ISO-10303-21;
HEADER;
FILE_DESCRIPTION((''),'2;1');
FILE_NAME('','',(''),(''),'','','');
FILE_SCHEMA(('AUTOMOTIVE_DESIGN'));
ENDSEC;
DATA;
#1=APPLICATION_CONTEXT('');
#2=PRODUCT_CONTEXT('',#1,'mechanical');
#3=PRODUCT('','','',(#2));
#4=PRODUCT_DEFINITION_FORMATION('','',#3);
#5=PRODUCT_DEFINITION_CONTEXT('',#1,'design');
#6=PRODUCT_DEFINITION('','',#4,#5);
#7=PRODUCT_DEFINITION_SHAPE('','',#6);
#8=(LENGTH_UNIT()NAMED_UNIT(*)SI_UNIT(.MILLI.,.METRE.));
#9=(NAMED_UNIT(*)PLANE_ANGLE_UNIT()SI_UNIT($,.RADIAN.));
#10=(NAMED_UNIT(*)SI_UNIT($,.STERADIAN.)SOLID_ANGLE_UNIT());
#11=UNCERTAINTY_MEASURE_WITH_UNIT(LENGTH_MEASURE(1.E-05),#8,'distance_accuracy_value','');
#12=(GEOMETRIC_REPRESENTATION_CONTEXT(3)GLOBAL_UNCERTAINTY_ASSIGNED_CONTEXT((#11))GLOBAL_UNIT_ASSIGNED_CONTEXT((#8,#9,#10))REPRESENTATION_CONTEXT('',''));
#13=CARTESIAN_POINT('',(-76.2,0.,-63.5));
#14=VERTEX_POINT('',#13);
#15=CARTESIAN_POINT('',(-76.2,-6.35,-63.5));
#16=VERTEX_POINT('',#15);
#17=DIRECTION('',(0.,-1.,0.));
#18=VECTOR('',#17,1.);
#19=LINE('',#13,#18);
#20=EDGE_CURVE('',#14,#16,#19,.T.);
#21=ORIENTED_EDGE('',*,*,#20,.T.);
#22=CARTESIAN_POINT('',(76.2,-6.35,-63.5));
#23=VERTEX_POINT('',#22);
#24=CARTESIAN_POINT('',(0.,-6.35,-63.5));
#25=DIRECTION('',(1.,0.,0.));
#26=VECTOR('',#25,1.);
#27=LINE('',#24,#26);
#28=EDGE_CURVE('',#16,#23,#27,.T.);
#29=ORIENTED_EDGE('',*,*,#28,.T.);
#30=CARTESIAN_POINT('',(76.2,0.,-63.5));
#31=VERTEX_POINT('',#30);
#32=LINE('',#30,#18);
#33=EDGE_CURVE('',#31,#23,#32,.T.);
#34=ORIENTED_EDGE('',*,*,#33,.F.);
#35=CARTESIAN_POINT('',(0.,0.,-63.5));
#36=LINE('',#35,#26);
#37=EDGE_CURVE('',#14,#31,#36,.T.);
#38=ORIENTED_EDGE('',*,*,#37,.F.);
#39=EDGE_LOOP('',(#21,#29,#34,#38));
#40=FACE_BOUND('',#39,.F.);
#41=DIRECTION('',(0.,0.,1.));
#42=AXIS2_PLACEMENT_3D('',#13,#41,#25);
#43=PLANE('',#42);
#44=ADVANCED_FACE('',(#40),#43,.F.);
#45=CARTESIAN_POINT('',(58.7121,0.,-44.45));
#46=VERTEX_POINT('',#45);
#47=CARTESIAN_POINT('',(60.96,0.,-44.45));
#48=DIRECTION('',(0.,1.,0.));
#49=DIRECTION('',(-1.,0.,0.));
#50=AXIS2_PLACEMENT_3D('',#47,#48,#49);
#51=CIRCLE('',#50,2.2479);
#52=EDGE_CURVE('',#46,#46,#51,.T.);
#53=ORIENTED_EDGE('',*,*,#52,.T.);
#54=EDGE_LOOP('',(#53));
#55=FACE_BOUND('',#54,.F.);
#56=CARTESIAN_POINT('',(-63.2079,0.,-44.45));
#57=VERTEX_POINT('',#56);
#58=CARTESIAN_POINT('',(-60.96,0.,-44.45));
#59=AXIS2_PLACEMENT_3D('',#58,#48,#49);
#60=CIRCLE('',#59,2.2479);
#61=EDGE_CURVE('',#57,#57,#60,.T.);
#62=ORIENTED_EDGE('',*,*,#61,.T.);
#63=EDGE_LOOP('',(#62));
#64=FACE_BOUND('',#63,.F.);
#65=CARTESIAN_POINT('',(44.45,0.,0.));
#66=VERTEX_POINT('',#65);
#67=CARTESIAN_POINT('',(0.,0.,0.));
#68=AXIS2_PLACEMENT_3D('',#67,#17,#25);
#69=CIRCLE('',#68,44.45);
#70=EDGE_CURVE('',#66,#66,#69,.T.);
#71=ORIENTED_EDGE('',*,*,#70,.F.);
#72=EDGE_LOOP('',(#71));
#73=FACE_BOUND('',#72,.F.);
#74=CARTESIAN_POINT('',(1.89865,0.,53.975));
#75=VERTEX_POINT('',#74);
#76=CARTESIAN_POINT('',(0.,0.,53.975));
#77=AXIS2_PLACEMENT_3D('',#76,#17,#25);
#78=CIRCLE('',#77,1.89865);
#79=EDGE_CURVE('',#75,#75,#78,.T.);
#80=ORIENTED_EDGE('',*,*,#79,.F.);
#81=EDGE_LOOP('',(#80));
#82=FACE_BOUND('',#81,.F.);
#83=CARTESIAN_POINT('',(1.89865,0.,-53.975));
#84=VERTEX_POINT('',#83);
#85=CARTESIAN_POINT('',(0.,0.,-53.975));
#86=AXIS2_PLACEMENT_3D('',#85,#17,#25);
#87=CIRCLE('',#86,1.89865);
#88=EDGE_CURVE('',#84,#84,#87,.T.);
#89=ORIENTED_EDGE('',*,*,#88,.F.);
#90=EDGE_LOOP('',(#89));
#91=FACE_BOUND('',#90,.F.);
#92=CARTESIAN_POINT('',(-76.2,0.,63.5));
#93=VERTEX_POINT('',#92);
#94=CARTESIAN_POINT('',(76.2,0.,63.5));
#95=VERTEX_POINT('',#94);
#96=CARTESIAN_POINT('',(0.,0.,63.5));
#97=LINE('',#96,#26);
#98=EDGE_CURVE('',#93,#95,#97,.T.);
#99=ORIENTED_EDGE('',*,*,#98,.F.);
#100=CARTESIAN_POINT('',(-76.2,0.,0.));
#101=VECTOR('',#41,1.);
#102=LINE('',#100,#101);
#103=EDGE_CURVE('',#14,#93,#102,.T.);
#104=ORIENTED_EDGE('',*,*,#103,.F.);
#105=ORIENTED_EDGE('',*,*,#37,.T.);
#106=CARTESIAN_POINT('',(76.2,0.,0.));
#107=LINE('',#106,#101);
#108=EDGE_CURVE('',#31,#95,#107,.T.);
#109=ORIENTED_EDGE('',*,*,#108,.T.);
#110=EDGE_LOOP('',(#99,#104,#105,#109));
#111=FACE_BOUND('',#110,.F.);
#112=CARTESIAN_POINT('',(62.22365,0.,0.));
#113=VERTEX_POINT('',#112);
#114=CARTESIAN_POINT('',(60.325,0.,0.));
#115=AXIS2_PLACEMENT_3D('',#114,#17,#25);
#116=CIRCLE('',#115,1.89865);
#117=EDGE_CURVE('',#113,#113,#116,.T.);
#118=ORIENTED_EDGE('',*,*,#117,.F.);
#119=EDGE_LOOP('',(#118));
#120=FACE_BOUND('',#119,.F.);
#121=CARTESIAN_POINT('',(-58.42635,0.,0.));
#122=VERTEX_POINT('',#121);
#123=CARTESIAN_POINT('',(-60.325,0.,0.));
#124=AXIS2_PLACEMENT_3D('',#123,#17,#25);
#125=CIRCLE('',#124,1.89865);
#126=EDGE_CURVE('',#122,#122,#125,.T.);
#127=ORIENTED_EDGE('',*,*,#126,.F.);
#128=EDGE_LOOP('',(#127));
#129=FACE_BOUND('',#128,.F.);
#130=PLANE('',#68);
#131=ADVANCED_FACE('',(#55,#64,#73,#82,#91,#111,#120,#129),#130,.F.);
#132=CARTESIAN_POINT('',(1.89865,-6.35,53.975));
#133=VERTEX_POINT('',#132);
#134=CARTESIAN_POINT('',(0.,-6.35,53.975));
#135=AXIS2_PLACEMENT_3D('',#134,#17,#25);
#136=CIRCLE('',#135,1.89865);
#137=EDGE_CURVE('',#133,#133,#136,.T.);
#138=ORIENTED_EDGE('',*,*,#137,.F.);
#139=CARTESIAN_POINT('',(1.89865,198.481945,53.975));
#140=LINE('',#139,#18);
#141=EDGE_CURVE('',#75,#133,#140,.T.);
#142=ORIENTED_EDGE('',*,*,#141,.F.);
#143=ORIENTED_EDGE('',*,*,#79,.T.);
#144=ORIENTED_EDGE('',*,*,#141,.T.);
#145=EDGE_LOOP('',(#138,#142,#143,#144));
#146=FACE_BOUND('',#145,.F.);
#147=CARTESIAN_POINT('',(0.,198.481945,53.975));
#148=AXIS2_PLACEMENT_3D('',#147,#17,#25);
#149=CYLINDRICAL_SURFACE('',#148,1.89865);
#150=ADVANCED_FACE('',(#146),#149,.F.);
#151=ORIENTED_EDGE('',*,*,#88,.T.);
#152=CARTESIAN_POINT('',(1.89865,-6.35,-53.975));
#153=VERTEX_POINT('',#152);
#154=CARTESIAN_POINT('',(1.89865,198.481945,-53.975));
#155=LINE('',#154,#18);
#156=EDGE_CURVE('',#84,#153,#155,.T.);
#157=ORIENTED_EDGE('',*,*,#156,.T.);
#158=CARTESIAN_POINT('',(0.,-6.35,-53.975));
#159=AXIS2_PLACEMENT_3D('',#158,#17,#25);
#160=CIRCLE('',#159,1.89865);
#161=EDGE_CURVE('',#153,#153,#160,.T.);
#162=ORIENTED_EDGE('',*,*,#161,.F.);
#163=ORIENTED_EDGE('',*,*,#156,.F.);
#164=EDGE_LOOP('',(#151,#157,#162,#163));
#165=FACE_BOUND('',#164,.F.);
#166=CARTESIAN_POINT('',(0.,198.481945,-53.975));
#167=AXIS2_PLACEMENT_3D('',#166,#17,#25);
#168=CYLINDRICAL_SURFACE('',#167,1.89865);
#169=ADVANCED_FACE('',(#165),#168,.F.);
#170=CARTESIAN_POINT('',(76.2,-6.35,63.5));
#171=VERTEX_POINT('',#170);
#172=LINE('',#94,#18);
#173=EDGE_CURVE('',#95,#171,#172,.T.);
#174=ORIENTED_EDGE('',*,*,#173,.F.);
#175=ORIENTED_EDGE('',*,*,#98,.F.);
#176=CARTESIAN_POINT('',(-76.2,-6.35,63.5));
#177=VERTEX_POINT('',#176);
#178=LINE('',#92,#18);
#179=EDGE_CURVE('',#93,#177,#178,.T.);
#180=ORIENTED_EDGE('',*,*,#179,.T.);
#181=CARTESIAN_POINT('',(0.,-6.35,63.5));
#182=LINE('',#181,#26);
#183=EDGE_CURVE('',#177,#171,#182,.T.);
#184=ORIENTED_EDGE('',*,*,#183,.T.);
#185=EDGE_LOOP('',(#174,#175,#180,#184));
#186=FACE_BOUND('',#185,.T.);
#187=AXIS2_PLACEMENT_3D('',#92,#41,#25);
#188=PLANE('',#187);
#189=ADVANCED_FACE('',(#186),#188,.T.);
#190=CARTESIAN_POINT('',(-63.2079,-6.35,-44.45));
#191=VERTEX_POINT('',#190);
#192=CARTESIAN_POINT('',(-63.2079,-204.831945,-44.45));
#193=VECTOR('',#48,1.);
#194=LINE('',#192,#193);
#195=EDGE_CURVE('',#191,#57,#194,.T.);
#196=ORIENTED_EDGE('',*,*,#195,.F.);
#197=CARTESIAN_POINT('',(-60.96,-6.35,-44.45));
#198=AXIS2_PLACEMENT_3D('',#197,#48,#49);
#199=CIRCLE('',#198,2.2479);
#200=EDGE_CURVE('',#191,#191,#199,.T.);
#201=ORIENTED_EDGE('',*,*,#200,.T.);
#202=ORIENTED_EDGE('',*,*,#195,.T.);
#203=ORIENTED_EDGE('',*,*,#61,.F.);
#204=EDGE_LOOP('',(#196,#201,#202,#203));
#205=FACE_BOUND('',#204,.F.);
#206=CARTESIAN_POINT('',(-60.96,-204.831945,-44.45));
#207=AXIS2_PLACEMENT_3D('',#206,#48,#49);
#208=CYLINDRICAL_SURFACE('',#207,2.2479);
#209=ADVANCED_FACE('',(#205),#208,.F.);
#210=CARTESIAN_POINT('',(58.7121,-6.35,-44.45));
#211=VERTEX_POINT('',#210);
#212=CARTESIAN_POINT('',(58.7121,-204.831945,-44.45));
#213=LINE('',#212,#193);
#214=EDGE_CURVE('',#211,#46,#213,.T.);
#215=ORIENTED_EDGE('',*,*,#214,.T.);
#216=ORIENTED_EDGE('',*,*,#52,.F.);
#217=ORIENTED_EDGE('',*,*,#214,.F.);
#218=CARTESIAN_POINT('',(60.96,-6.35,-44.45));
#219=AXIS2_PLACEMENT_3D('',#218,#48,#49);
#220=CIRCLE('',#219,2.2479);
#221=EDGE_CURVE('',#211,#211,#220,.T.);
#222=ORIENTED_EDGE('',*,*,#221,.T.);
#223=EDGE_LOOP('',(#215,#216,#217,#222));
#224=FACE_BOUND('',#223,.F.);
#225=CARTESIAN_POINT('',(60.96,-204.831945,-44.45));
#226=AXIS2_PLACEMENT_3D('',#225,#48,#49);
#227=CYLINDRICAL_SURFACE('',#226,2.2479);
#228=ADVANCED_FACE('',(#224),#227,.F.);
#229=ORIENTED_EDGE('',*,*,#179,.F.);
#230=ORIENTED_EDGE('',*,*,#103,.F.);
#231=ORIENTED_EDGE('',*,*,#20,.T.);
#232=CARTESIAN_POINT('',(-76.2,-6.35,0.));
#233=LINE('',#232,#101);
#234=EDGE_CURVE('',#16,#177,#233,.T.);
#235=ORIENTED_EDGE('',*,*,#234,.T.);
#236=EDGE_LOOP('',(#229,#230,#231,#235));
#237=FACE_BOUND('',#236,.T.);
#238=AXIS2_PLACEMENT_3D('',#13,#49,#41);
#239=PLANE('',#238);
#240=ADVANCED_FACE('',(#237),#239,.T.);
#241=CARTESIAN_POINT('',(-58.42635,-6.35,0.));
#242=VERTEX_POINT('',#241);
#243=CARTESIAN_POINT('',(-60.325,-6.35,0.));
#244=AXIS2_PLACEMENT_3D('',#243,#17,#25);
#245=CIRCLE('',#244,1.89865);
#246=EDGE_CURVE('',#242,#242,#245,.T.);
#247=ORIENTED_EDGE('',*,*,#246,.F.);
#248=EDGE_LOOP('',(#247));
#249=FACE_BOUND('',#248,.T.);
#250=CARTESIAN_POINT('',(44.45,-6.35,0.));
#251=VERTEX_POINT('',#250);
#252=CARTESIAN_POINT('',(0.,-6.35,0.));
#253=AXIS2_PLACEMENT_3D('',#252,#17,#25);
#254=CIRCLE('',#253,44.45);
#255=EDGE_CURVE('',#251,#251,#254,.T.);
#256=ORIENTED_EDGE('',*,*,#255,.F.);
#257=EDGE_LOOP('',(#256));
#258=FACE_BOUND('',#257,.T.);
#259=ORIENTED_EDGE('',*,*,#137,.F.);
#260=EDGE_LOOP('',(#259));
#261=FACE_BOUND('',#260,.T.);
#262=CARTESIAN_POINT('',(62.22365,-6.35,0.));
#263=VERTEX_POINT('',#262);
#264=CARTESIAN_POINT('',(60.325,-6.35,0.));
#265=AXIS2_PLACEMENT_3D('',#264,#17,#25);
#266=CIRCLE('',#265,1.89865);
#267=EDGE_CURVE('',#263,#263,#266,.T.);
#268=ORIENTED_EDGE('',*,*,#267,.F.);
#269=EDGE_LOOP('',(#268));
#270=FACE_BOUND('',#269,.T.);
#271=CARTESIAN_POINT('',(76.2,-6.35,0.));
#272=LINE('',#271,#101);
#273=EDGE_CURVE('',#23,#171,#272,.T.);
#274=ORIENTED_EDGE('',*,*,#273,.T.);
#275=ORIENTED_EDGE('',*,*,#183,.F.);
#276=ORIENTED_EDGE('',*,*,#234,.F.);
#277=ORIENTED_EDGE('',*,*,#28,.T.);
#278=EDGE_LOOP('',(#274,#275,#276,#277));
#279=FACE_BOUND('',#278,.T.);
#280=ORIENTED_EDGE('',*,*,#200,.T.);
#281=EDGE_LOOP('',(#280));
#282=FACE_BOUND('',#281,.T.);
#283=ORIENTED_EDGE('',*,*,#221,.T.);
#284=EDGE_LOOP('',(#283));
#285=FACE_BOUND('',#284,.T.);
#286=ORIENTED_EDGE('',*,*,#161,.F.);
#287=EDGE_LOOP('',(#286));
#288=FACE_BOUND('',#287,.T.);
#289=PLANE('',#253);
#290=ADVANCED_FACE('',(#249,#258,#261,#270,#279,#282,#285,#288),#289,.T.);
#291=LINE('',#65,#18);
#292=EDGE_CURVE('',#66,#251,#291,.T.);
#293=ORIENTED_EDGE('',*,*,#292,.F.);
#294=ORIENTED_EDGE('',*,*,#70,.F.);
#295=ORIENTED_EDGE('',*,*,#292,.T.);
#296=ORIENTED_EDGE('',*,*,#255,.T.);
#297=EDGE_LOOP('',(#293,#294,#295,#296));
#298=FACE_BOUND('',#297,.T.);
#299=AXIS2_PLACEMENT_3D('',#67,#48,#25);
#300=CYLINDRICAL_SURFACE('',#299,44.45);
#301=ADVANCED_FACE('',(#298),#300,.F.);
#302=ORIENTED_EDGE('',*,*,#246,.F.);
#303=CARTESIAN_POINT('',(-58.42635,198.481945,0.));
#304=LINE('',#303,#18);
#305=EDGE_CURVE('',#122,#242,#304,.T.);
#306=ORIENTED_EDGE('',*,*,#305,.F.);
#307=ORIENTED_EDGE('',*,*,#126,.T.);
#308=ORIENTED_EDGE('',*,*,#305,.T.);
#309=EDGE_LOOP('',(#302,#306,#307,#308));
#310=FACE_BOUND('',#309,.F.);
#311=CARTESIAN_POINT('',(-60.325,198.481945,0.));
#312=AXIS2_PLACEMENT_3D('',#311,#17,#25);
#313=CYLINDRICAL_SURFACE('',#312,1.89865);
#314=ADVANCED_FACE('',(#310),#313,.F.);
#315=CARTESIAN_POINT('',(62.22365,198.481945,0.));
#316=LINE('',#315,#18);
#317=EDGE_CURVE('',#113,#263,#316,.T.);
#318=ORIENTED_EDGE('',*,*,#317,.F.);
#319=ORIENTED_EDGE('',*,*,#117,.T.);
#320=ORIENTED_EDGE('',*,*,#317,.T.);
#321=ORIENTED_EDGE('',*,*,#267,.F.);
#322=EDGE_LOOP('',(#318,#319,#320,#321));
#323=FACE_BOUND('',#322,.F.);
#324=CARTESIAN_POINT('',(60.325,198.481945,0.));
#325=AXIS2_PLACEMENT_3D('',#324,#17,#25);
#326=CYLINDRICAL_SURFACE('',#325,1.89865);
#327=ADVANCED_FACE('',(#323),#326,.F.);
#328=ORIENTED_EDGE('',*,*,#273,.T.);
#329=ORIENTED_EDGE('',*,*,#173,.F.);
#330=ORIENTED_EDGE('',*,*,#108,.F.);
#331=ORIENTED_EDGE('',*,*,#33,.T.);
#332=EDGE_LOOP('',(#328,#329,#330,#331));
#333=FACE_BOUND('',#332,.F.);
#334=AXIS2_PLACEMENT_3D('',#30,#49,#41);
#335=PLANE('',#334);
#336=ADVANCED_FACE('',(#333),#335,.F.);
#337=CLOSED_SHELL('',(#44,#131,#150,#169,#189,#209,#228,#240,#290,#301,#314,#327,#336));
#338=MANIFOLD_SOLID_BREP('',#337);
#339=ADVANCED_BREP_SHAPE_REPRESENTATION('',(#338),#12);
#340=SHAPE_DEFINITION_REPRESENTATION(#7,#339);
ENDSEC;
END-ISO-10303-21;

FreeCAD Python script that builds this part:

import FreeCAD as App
import Part
import Sketcher
from FreeCAD import Vector
Q = App.Units.Quantity

doc = App.newDocument("Part")
params = doc.addObject("Spreadsheet::Sheet", "Params")
for row, (alias, value) in enumerate([
    ("sketch1_diameter", "3.5 in"),
    ("sketch1_width", "6 in"),
    ("sketch1_height", "5 in"),
    ("pad1_length", "0.25 in"),
    ("hole_diameter", "0.1495 in"),
    ("sketch3_diameter", "0.177 in"),
    ("hole2_diameter", "0.177 in"),
], start=1):
    params.set(f"A{row}", alias)
    params.set(f"B{row}", "=" + value)
    params.setAlias(f"B{row}", alias)

body = doc.addObject("PartDesign::Body", "Body")

sketch1 = body.newObject("Sketcher::SketchObject", "Sketch")
sketch1.AttachmentSupport = (doc.getObject("XZ_Plane"), [""])
sketch1.MapMode = "FlatFace"
sketch1.addGeometry([
    Part.LineSegment(Vector(-76, 64, 0), Vector(-76, -64, 0)),
    Part.LineSegment(Vector(-76, -64, 0), Vector(76, -64, 0)),
    Part.LineSegment(Vector(76, -64, 0), Vector(76, 64, 0)),
    Part.LineSegment(Vector(76, 64, 0), Vector(-76, 64, 0)),
    Part.Circle(Vector(0, 0, 0), Vector(0, 0, 1), 44),
], False)
sketch1.addConstraint([
    Sketcher.Constraint("Coincident", 0, 2, 1, 1),
    Sketcher.Constraint("Coincident", 1, 2, 2, 1),
    Sketcher.Constraint("Coincident", 2, 2, 3, 1),
    Sketcher.Constraint("Coincident", 3, 2, 0, 1),
    Sketcher.Constraint("Vertical", 0),
    Sketcher.Constraint("Horizontal", 1),
    Sketcher.Constraint("Vertical", 2),
    Sketcher.Constraint("Horizontal", 3),
    Sketcher.Constraint("Coincident", 4, 3, -1, 1),
    Sketcher.Constraint("Symmetric", 0, 2, 2, 2, -1, 1),
    Sketcher.Constraint("Diameter", 4, Q("3.5 in")),
    Sketcher.Constraint("DistanceX", 1, 1, 1, 2, Q("6 in")),
    Sketcher.Constraint("DistanceY", 0, 2, 0, 1, Q("5 in")),
])
sketch1.setExpression("Constraints[10]", "Params.sketch1_diameter")
sketch1.setExpression("Constraints[11]", "Params.sketch1_width")
sketch1.setExpression("Constraints[12]", "Params.sketch1_height")
pad1 = body.newObject("PartDesign::Pad", "Pad")
pad1.Profile = sketch1
pad1.setExpression("Length", "Params.pad1_length")

sketch2 = body.newObject("Sketcher::SketchObject", "Sketch001")
sketch2.AttachmentSupport = (doc.getObject("XZ_Plane"), [""])
sketch2.MapMode = "FlatFace"
sketch2.addGeometry([
    Part.Circle(Vector(60.3, 0, 0), Vector(0, 0, 1), 1.9),
    Part.Circle(Vector(0, 54, 0), Vector(0, 0, 1), 1.9),
    Part.Circle(Vector(-60.3, 0, 0), Vector(0, 0, 1), 1.9),
    Part.Circle(Vector(0, -54, 0), Vector(0, 0, 1), 1.9),
], False)
sketch2.addConstraint([
    Sketcher.Constraint("Equal", 0, 1),
    Sketcher.Constraint("Equal", 1, 2),
    Sketcher.Constraint("Equal", 2, 3),
    Sketcher.Constraint("Symmetric", 0, 3, 2, 3, -1, 1),
    Sketcher.Constraint("Symmetric", 1, 3, 3, 3, -1, 1),
    Sketcher.Constraint("PointOnObject", 0, 3, -1),
    Sketcher.Constraint("PointOnObject", 1, 3, -2),
    Sketcher.Constraint("Diameter", 0, Q("0.1495 in")),
    Sketcher.Constraint("DistanceX", 2, 3, 0, 3, Q("4.75 in")),
    Sketcher.Constraint("DistanceY", 3, 3, 1, 3, Q("4.25 in")),
])
doc.recompute()
hole = body.newObject("PartDesign::Hole", "Hole")
hole.Profile = sketch2
hole.ThreadType = "None"
hole.setExpression("Diameter", "Params.hole_diameter")
hole.DepthType = "ThroughAll"
hole.Reversed = True

sketch3 = body.newObject("Sketcher::SketchObject", "Sketch002")
sketch3.AttachmentSupport = (doc.getObject("XZ_Plane"), [""])
sketch3.MapMode = "FlatFace"
sketch3.AttachmentOffset = App.Placement(Vector(0, 0, 0.25 * 25.4), App.Rotation())
sketch3.addGeometry([
    Part.Circle(Vector(-61, -44.5, 0), Vector(0, 0, 1), 2.2),
    Part.Circle(Vector(61, -44.5, 0), Vector(0, 0, 1), 2.2),
], False)
sketch3.addConstraint([
    Sketcher.Constraint("Equal", 0, 1),
    Sketcher.Constraint("Symmetric", 0, 3, 1, 3, -2),
    Sketcher.Constraint("Diameter", 0, Q("0.177 in")),
    Sketcher.Constraint("DistanceX", 0, 3, -1, 1, Q("2.4 in")),
    Sketcher.Constraint("DistanceY", 0, 3, -1, 1, Q("1.75 in")),
])
sketch3.setExpression("Constraints[2]", "Params.sketch3_diameter")
doc.recompute()
hole2 = body.newObject("PartDesign::Hole", "Hole001")
hole2.Profile = sketch3
hole2.ThreadType = "None"
hole2.setExpression("Diameter", "Params.hole2_diameter")
hole2.DepthType = "ThroughAll"

doc.recompute()
